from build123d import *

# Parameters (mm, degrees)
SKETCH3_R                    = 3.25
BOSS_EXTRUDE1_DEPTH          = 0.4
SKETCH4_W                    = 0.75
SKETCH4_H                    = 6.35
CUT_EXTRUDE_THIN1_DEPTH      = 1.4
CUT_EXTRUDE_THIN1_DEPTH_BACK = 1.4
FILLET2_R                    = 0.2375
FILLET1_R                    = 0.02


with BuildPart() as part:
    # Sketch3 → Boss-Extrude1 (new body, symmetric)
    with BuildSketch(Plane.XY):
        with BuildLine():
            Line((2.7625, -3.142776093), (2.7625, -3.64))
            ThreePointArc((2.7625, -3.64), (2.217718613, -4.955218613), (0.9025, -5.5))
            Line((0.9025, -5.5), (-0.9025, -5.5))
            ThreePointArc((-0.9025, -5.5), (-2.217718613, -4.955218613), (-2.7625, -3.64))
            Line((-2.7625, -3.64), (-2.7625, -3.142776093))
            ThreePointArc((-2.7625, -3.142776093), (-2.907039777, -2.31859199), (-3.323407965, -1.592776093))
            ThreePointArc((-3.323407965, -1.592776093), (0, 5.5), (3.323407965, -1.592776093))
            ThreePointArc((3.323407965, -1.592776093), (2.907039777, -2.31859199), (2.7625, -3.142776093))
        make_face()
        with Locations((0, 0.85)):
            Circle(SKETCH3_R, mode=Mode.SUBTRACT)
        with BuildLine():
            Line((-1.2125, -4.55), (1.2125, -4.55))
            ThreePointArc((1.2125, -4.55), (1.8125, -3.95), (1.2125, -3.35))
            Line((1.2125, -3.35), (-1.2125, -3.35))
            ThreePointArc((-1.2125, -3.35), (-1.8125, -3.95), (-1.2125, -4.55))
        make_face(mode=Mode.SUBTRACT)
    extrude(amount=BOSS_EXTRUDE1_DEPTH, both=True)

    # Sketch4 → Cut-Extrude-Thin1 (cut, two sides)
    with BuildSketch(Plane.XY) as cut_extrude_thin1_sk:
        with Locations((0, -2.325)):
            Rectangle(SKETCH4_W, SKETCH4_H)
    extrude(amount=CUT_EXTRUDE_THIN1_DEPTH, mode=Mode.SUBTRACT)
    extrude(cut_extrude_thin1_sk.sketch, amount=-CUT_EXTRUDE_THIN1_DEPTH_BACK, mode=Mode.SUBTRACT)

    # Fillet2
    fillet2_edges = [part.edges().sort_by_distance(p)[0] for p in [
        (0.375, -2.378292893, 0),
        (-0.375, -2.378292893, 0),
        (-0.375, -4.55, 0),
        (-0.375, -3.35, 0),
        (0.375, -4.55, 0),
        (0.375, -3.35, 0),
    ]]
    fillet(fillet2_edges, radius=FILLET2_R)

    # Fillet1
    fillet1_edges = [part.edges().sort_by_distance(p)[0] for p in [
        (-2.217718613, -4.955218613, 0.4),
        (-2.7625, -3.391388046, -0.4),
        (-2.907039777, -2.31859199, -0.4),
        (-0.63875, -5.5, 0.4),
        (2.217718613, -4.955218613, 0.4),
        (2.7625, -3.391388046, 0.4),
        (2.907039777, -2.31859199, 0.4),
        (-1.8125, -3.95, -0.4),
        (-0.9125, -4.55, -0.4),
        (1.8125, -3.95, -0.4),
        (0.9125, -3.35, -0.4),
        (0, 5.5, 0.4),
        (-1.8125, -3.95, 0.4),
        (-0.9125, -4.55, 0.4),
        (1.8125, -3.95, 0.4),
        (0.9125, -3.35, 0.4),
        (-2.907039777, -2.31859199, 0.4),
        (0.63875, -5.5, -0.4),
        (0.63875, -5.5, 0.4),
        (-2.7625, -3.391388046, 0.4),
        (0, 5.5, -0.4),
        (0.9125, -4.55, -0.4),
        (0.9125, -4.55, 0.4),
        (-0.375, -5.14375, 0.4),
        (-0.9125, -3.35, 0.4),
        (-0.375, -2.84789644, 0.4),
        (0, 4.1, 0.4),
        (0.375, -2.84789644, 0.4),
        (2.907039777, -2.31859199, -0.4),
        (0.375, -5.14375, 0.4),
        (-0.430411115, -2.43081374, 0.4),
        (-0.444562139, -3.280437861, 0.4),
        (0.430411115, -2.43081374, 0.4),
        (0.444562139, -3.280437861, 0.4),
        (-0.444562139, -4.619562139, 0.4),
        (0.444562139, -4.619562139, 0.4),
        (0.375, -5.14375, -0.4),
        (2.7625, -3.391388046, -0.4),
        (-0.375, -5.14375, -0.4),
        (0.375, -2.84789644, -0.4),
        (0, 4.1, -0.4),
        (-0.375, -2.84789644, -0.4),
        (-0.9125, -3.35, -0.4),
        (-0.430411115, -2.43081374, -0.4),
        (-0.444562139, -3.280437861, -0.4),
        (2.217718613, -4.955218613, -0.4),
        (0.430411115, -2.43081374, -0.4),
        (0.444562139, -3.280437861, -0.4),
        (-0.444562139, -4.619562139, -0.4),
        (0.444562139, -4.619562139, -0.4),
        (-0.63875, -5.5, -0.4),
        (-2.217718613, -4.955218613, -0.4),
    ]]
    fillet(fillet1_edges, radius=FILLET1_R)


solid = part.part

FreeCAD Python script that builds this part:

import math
import FreeCAD as App
import Part
import Sketcher
from FreeCAD import Vector


def edges_at(feature, points):
    """Names of the edges that pass closest to the given points."""
    edges = feature.Shape.Edges
    near = lambda p: min(range(len(edges)), key=lambda i: edges[i].distToShape(Part.Vertex(*p))[0])
    return sorted({f"Edge{near(p) + 1}" for p in points})


def add_polygon(sketch, points):
    """Adds a closed chain of lines whose ends are joined by coincident constraints."""
    first, n = sketch.GeometryCount, len(points)
    for a, b in zip(points, points[1:] + points[:1]):
        sketch.addGeometry(Part.LineSegment(App.Vector(*a, 0), App.Vector(*b, 0)), False)
    for i in range(n):
        sketch.addConstraint(Sketcher.Constraint("Coincident", first + i, 2, first + (i + 1) % n, 1))

doc = App.newDocument("Part")
body = doc.addObject("PartDesign::Body", "Body")

# Sketch on XY plane
sketch1 = body.newObject("Sketcher::SketchObject", "Sketch")
sketch1.AttachmentSupport = (doc.getObject("XY_Plane"), [""])
sketch1.MapMode = "FlatFace"
sketch1.addGeometry([
    Part.LineSegment(Vector(2.76, -3.64, 0), Vector(2.76, -3.14, 0)),  # 0
    Part.ArcOfCircle(Part.Circle(Vector(5.18, -3.14, 0), Vector(0, 0, 1), 2.42), math.radians(140), math.radians(180)),  # 1
    Part.ArcOfCircle(Part.Circle(Vector(0, 1.18, 0), Vector(0, 0, 1), 4.33), math.radians(-40), math.radians(220)),  # 2
    Part.ArcOfCircle(Part.Circle(Vector(-5.18, -3.14, 0), Vector(0, 0, 1), 2.42), math.radians(0), math.radians(40)),  # 3
    Part.LineSegment(Vector(-2.76, -3.14, 0), Vector(-2.76, -3.64, 0)),  # 4
    Part.ArcOfCircle(Part.Circle(Vector(-0.9, -3.64, 0), Vector(0, 0, 1), 1.86), math.radians(180), math.radians(270)),  # 5
    Part.LineSegment(Vector(-0.9, -5.5, 0), Vector(0.9, -5.5, 0)),  # 6
    Part.ArcOfCircle(Part.Circle(Vector(0.9, -3.64, 0), Vector(0, 0, 1), 1.86), math.radians(-90), math.radians(0)),  # 7
    Part.ArcOfCircle(Part.Circle(Vector(-1.21, -3.95, 0), Vector(0, 0, 1), 0.6), math.radians(90), math.radians(270)),  # 8
    Part.LineSegment(Vector(-1.21, -3.35, 0), Vector(1.21, -3.35, 0)),  # 9
    Part.ArcOfCircle(Part.Circle(Vector(1.21, -3.95, 0), Vector(0, 0, 1), 0.6), math.radians(-90), math.radians(90)),  # 10
    Part.LineSegment(Vector(1.21, -4.55, 0), Vector(-1.21, -4.55, 0)),  # 11
    Part.Circle(Vector(0, 0.85, 0), Vector(0, 0, 1), 3.25),  # 12
], False)
sketch1.addConstraint([
    Sketcher.Constraint("Tangent", 0, 2, 1, 2),
    Sketcher.Constraint("Tangent", 1, 1, 2, 1),
    Sketcher.Constraint("Tangent", 2, 2, 3, 2),
    Sketcher.Constraint("Tangent", 3, 1, 4, 1),
    Sketcher.Constraint("Tangent", 4, 2, 5, 1),
    Sketcher.Constraint("Tangent", 5, 2, 6, 1),
    Sketcher.Constraint("Tangent", 6, 2, 7, 1),
    Sketcher.Constraint("Tangent", 7, 2, 0, 1),
    Sketcher.Constraint("Tangent", 8, 1, 9, 1),
    Sketcher.Constraint("Tangent", 9, 2, 10, 2),
    Sketcher.Constraint("Tangent", 10, 1, 11, 1),
    Sketcher.Constraint("Tangent", 11, 2, 8, 2),
    Sketcher.Constraint("Vertical", 0),
    Sketcher.Constraint("Vertical", 4),
    Sketcher.Constraint("Horizontal", 6),
    Sketcher.Constraint("Horizontal", 9),
    Sketcher.Constraint("Horizontal", 11),
    Sketcher.Constraint("Equal", 1, 3),
    Sketcher.Constraint("Equal", 5, 7),
    Sketcher.Constraint("Symmetric", 1, 3, 3, 3, -2),
    Sketcher.Constraint("PointOnObject", 12, 3, -2),
    Sketcher.Constraint("Diameter", 12, 6.5),
    Sketcher.Constraint("Radius", 8, 0.6),
    Sketcher.Constraint("Radius", 5, 1.86),
    Sketcher.Constraint("Radius", 2, 4.325),
    Sketcher.Constraint("DistanceY", 5, 2, -1, 1, 5.5),
    Sketcher.Constraint("DistanceY", 8, 3, 12, 3, 4.8),
    Sketcher.Constraint("DistanceX", 6, 1, 6, 2, 1.805),
    Sketcher.Constraint("DistanceX", 9, 1, 9, 2, 2.425),
    Sketcher.Constraint("DistanceY", 8, 3, -1, 1, 3.95),
    Sketcher.Constraint("Radius", 1, 2.422071),
    Sketcher.Constraint("DistanceX", 8, 3, 5, 3, 0.31),
    Sketcher.Constraint("DistanceY", -1, 1, 2, 3, 1.175),
])
pad1 = body.newObject("PartDesign::Pad", "Pad")
pad1.Profile = sketch1
pad1.Length = 0.8
pad1.Midplane = True

# Sketch on XY plane
sketch2 = body.newObject("Sketcher::SketchObject", "Sketch001")
sketch2.AttachmentSupport = (doc.getObject("XY_Plane"), [""])
sketch2.MapMode = "FlatFace"
add_polygon(sketch2, [(-0.4, 0.8), (-0.4, -5.5), (0.4, -5.5), (0.4, 0.8)])  # lines 0-3
sketch2.addConstraint([
    Sketcher.Constraint("Vertical", 0),
    Sketcher.Constraint("Horizontal", 1),
    Sketcher.Constraint("Vertical", 2),
    Sketcher.Constraint("Horizontal", 3),
    Sketcher.Constraint("DistanceX", 1, 1, 1, 2, 0.75),
    Sketcher.Constraint("DistanceY", 0, 2, 0, 1, 6.35),
    Sketcher.Constraint("DistanceY", 0, 2, -1, 1, 5.5),
    Sketcher.Constraint("DistanceX", 0, 2, -1, 1, 0.375),
])
pocket1 = body.newObject("PartDesign::Pocket", "Pocket")
pocket1.Profile = sketch2
pocket1.Type = "ThroughAll"
pocket1.Midplane = True
doc.recompute()

fillet = body.newObject("PartDesign::Fillet", "Fillet")
fillet.Base = (pocket1, edges_at(pocket1, [
    (0.375, -2.378, 0),
    (-0.375, -2.378, 0),
    (-0.375, -4.55, 0),
    (-0.375, -3.35, 0),
    (0.375, -4.55, 0),
    (0.375, -3.35, 0),
]))
fillet.Radius = 0.2375
doc.recompute()

fillet2 = body.newObject("PartDesign::Fillet", "Fillet001")
fillet2.Base = (fillet, edges_at(fillet, [
    (-2.218, -4.955, 0.4),
    (-2.763, -3.391, -0.4),
    (-2.907, -2.319, -0.4),
    (-0.639, -5.5, 0.4),
    (2.218, -4.955, 0.4),
    (2.763, -3.391, 0.4),
    (2.907, -2.319, 0.4),
    (-1.812, -3.95, -0.4),
    (-0.912, -4.55, -0.4),
    (1.812, -3.95, -0.4),
    (0.912, -3.35, -0.4),
    (0, 5.5, 0.4),
    (-1.812, -3.95, 0.4),
    (-0.912, -4.55, 0.4),
    (1.812, -3.95, 0.4),
    (0.912, -3.35, 0.4),
    (-2.907, -2.319, 0.4),
    (0.639, -5.5, -0.4),
    (0.639, -5.5, 0.4),
    (-2.763, -3.391, 0.4),
    (0, 5.5, -0.4),
    (0.912, -4.55, -0.4),
    (0.912, -4.55, 0.4),
    (-0.375, -5.144, 0.4),
    (-0.912, -3.35, 0.4),
    (-0.375, -2.848, 0.4),
    (0, 4.1, 0.4),
    (0.375, -2.848, 0.4),
    (2.907, -2.319, -0.4),
    (0.375, -5.144, 0.4),
    (-0.43, -2.431, 0.4),
    (-0.445, -3.28, 0.4),
    (0.43, -2.431, 0.4),
    (0.445, -3.28, 0.4),
    (-0.445, -4.62, 0.4),
    (0.445, -4.62, 0.4),
    (0.375, -5.144, -0.4),
    (2.763, -3.391, -0.4),
    (-0.375, -5.144, -0.4),
    (0.375, -2.848, -0.4),
    (0, 4.1, -0.4),
    (-0.375, -2.848, -0.4),
    (-0.912, -3.35, -0.4),
    (-0.43, -2.431, -0.4),
    (-0.445, -3.28, -0.4),
    (2.218, -4.955, -0.4),
    (0.43, -2.431, -0.4),
    (0.445, -3.28, -0.4),
    (-0.445, -4.62, -0.4),
    (0.445, -4.62, -0.4),
    (-0.639, -5.5, -0.4),
    (-2.218, -4.955, -0.4),
]))
fillet2.Radius = 0.02

doc.recompute()
